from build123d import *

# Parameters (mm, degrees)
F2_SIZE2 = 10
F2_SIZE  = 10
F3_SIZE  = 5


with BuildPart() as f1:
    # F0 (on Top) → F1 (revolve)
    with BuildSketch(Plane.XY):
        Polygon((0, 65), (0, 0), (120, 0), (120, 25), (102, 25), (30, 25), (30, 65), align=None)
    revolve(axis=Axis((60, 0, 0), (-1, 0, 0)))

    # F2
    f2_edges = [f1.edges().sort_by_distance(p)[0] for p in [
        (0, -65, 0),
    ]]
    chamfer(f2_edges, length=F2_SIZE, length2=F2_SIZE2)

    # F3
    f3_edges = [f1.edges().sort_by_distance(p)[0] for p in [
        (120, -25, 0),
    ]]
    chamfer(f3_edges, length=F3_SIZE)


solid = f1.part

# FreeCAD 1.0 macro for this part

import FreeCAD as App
import Part
import Sketcher

V = App.Vector
Q = App.Units.Quantity


def edges_at(feature, points):
    """Names of the edges that pass closest to the given points."""
    edges = feature.Shape.Edges
    near = lambda p: min(range(len(edges)), key=lambda i: edges[i].distToShape(Part.Vertex(*p))[0])
    return sorted({f"Edge{near(p) + 1}" for p in points})

doc = App.newDocument("Part")
body = doc.addObject("PartDesign::Body", "Body")

sketch1 = doc.addObject("Sketcher::SketchObject", "Sketch")
body.addObject(sketch1)
sketch1.AttachmentSupport = (doc.XY_Plane, [""])
sketch1.MapMode = "FlatFace"
sketch1.addGeometry(Part.LineSegment(V(0, 65, 0), V(0, 0, 0)), False)
sketch1.addGeometry(Part.LineSegment(V(0, 0, 0), V(120, 0, 0)), False)
sketch1.addGeometry(Part.LineSegment(V(120, 0, 0), V(120, 25, 0)), False)
sketch1.addGeometry(Part.LineSegment(V(120, 25, 0), V(30, 25, 0)), False)
sketch1.addGeometry(Part.LineSegment(V(30, 25, 0), V(30, 65, 0)), False)
sketch1.addGeometry(Part.LineSegment(V(30, 65, 0), V(0, 65, 0)), False)
sketch1.addConstraint(Sketcher.Constraint("Coincident", 0, 2, 1, 1))
sketch1.addConstraint(Sketcher.Constraint("Coincident", 1, 2, 2, 1))
sketch1.addConstraint(Sketcher.Constraint("Coincident", 2, 2, 3, 1))
sketch1.addConstraint(Sketcher.Constraint("Coincident", 3, 2, 4, 1))
sketch1.addConstraint(Sketcher.Constraint("Coincident", 4, 2, 5, 1))
sketch1.addConstraint(Sketcher.Constraint("Coincident", 5, 2, 0, 1))
sketch1.addConstraint(Sketcher.Constraint("Vertical", 0))
sketch1.addConstraint(Sketcher.Constraint("Horizontal", 1))
sketch1.addConstraint(Sketcher.Constraint("Vertical", 2))
sketch1.addConstraint(Sketcher.Constraint("Horizontal", 3))
sketch1.addConstraint(Sketcher.Constraint("Vertical", 4))
sketch1.addConstraint(Sketcher.Constraint("Horizontal", 5))
sketch1.addConstraint(Sketcher.Constraint("Coincident", 0, 2, -1, 1))
sketch1.addConstraint(Sketcher.Constraint("DistanceX", 1, 1, 1, 2, Q("120 mm")))
sketch1.addConstraint(Sketcher.Constraint("DistanceX", 3, 2, 3, 1, Q("90 mm")))
sketch1.addConstraint(Sketcher.Constraint("DistanceY", 0, 2, 0, 1, Q("65 mm")))
sketch1.addConstraint(Sketcher.Constraint("DistanceY", 2, 1, 2, 2, Q("25 mm")))
revolution = doc.addObject("PartDesign::Revolution", "Revolution")
body.addObject(revolution)
revolution.Profile = sketch1
revolution.ReferenceAxis = (sketch1, ["H_Axis"])
revolution.Angle = 360
doc.recompute()

chamfer = doc.addObject("PartDesign::Chamfer", "Chamfer")
body.addObject(chamfer)
chamfer.Base = (revolution, edges_at(revolution, [(0, -65, 0)]))
chamfer.ChamferType = "Two distances"
chamfer.Size = 10
chamfer.Size2 = 10
doc.recompute()

chamfer2 = doc.addObject("PartDesign::Chamfer", "Chamfer001")
body.addObject(chamfer2)
chamfer2.Base = (chamfer, edges_at(chamfer, [(120, -25, 0)]))
chamfer2.Size = 5

doc.recompute()
